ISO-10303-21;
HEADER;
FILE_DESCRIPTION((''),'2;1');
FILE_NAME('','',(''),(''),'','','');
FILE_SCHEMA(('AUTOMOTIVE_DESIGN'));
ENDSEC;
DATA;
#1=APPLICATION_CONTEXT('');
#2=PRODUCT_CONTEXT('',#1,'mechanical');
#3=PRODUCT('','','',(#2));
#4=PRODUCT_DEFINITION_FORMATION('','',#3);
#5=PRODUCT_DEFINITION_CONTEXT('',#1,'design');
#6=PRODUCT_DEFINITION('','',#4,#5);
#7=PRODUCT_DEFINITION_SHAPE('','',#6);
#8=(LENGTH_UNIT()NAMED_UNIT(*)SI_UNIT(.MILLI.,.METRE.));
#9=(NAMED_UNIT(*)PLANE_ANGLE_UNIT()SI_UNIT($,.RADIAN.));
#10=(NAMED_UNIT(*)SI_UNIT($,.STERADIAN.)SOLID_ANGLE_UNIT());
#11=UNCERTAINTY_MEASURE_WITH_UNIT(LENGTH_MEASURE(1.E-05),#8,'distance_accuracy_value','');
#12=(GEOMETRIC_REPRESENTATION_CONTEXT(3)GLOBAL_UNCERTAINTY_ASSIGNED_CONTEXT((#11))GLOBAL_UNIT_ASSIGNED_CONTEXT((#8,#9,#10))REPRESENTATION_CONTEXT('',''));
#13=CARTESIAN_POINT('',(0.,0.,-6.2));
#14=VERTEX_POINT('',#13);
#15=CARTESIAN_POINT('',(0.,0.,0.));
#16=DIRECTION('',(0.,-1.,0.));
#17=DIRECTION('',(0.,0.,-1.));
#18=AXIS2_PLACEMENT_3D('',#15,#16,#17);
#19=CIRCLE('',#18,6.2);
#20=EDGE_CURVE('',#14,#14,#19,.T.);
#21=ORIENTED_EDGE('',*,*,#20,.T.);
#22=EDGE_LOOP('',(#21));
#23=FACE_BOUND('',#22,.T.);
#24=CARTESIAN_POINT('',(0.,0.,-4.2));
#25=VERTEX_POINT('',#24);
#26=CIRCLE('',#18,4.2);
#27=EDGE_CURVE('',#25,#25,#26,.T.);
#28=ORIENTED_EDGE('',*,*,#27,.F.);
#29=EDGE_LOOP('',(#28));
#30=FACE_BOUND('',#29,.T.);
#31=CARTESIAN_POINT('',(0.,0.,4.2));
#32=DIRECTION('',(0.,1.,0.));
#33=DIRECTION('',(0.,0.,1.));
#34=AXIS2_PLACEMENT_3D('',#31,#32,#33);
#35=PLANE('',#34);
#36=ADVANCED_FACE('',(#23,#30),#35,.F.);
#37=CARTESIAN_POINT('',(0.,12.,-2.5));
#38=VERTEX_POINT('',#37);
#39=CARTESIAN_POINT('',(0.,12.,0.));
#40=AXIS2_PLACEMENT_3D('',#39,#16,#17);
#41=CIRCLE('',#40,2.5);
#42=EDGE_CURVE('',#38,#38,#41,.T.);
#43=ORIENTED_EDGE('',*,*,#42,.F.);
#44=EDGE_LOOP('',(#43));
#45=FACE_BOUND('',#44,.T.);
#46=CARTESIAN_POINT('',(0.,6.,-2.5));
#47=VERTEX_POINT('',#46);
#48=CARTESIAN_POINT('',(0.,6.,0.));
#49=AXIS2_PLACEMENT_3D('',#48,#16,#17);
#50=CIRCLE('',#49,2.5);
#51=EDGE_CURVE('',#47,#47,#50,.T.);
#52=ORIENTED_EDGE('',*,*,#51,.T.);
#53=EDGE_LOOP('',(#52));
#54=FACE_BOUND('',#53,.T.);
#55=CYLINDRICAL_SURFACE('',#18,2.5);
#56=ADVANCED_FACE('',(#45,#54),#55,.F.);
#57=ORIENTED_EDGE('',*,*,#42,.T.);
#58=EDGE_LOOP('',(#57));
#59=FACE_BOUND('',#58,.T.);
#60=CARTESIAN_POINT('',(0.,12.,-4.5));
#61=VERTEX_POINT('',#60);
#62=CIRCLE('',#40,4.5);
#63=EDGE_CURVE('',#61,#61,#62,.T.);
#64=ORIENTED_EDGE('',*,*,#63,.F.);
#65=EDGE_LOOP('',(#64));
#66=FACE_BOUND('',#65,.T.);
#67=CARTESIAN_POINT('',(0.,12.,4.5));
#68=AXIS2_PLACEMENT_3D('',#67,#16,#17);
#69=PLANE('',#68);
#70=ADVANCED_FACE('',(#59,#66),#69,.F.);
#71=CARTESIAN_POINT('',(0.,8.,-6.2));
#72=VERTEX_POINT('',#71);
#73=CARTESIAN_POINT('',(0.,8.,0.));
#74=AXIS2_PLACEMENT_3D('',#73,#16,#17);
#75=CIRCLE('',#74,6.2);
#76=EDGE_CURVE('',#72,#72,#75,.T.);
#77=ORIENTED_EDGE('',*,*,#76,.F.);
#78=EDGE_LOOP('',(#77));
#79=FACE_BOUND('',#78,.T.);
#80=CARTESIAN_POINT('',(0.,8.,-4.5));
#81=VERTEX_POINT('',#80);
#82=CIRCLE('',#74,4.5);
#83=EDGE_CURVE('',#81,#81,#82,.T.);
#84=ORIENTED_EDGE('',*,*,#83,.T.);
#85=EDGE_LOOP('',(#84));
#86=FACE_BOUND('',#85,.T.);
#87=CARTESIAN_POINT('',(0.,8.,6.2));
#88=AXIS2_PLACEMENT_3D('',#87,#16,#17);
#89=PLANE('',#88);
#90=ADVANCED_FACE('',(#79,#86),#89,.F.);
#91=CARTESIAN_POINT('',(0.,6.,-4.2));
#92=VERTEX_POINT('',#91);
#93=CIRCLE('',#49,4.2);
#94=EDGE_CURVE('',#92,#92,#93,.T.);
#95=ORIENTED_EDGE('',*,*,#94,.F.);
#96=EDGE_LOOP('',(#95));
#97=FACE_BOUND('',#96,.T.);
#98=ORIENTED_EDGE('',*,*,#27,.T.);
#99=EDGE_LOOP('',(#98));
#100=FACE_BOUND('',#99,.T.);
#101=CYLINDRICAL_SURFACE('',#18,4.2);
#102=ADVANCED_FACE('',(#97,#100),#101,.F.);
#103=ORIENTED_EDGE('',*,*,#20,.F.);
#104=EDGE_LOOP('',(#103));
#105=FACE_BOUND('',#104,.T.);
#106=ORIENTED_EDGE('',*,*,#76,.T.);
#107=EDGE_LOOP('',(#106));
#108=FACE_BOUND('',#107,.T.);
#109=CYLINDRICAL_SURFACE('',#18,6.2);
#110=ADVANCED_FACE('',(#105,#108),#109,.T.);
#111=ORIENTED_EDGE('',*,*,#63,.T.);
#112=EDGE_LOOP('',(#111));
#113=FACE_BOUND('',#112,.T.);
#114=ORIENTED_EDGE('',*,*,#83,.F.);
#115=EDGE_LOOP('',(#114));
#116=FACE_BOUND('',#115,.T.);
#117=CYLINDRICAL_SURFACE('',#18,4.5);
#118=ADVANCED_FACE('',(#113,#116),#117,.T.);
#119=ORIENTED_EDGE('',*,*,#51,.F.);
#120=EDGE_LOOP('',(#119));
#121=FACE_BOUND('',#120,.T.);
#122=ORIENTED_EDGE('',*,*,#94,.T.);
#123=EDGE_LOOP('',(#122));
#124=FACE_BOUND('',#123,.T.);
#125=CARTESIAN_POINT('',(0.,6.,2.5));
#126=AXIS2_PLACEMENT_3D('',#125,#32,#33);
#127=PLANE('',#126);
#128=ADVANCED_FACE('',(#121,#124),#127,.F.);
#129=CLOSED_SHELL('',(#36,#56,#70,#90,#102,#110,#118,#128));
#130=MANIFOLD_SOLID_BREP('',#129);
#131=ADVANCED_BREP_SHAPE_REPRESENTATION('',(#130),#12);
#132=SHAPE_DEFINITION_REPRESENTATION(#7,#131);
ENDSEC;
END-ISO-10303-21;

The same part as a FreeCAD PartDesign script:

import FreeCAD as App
import Part
import Sketcher


def add_polygon(sketch, points):
    """Adds a closed chain of lines whose ends are joined by coincident constraints."""
    first, n = sketch.GeometryCount, len(points)
    for a, b in zip(points, points[1:] + points[:1]):
        sketch.addGeometry(Part.LineSegment(App.Vector(*a, 0), App.Vector(*b, 0)), False)
    for i in range(n):
        sketch.addConstraint(Sketcher.Constraint("Coincident", first + i, 2, first + (i + 1) % n, 1))

doc = App.newDocument("Part")
params = doc.addObject("Spreadsheet::Sheet", "Params")
for row, (alias, value) in enumerate([
    ("sketch1_width", "8 mm"),
    ("sketch1_width2", "6 mm"),
    ("sketch1_height", "2 mm"),
    ("sketch1_height2", "1.7 mm"),
    ("revolution_angle", "360 deg"),
], start=1):
    params.set(f"A{row}", alias)
    params.set(f"B{row}", "=" + value)
    params.setAlias(f"B{row}", alias)

body = doc.addObject("PartDesign::Body", "Body")

sketch1 = body.newObject("Sketcher::SketchObject", "Sketch")
sketch1.AttachmentSupport = (doc.getObject("YZ_Plane"), [""])
sketch1.MapMode = "FlatFace"
add_polygon(sketch1, [(8, 6.2), (0, 6.2), (0, 4.2), (6, 4.2), (6, 2.5), (12, 2.5), (12, 4.5), (8, 4.5)])
sketch1.addConstraint([
    Sketcher.Constraint("Horizontal", 0),
    Sketcher.Constraint("Vertical", 1),
    Sketcher.Constraint("Horizontal", 2),
    Sketcher.Constraint("Vertical", 3),
    Sketcher.Constraint("Horizontal", 4),
    Sketcher.Constraint("Vertical", 5),
    Sketcher.Constraint("Horizontal", 6),
    Sketcher.Constraint("Vertical", 7),
    Sketcher.Constraint("PointOnObject", 0, 2, -2),
    Sketcher.Constraint("Equal", 2, 4),
    Sketcher.Constraint("Equal", 1, 5),
    Sketcher.Constraint("DistanceX", 0, 2, 0, 1, 8.0),
    Sketcher.Constraint("DistanceX", 2, 1, 2, 2, 6.0),
    Sketcher.Constraint("DistanceY", 1, 2, 1, 1, 2.0),
    Sketcher.Constraint("DistanceY", 3, 2, 3, 1, 1.7),
    Sketcher.Constraint("DistanceY", -1, 1, 0, 2, 6.2),
])
sketch1.setExpression("Constraints[19]", "Params.sketch1_width")
sketch1.setExpression("Constraints[20]", "Params.sketch1_width2")
sketch1.setExpression("Constraints[21]", "Params.sketch1_height")
sketch1.setExpression("Constraints[22]", "Params.sketch1_height2")
revolution = body.newObject("PartDesign::Revolution", "Revolution")
revolution.Profile = sketch1
revolution.ReferenceAxis = (sketch1, ["H_Axis"])
revolution.setExpression("Angle", "Params.revolution_angle")

doc.recompute()
